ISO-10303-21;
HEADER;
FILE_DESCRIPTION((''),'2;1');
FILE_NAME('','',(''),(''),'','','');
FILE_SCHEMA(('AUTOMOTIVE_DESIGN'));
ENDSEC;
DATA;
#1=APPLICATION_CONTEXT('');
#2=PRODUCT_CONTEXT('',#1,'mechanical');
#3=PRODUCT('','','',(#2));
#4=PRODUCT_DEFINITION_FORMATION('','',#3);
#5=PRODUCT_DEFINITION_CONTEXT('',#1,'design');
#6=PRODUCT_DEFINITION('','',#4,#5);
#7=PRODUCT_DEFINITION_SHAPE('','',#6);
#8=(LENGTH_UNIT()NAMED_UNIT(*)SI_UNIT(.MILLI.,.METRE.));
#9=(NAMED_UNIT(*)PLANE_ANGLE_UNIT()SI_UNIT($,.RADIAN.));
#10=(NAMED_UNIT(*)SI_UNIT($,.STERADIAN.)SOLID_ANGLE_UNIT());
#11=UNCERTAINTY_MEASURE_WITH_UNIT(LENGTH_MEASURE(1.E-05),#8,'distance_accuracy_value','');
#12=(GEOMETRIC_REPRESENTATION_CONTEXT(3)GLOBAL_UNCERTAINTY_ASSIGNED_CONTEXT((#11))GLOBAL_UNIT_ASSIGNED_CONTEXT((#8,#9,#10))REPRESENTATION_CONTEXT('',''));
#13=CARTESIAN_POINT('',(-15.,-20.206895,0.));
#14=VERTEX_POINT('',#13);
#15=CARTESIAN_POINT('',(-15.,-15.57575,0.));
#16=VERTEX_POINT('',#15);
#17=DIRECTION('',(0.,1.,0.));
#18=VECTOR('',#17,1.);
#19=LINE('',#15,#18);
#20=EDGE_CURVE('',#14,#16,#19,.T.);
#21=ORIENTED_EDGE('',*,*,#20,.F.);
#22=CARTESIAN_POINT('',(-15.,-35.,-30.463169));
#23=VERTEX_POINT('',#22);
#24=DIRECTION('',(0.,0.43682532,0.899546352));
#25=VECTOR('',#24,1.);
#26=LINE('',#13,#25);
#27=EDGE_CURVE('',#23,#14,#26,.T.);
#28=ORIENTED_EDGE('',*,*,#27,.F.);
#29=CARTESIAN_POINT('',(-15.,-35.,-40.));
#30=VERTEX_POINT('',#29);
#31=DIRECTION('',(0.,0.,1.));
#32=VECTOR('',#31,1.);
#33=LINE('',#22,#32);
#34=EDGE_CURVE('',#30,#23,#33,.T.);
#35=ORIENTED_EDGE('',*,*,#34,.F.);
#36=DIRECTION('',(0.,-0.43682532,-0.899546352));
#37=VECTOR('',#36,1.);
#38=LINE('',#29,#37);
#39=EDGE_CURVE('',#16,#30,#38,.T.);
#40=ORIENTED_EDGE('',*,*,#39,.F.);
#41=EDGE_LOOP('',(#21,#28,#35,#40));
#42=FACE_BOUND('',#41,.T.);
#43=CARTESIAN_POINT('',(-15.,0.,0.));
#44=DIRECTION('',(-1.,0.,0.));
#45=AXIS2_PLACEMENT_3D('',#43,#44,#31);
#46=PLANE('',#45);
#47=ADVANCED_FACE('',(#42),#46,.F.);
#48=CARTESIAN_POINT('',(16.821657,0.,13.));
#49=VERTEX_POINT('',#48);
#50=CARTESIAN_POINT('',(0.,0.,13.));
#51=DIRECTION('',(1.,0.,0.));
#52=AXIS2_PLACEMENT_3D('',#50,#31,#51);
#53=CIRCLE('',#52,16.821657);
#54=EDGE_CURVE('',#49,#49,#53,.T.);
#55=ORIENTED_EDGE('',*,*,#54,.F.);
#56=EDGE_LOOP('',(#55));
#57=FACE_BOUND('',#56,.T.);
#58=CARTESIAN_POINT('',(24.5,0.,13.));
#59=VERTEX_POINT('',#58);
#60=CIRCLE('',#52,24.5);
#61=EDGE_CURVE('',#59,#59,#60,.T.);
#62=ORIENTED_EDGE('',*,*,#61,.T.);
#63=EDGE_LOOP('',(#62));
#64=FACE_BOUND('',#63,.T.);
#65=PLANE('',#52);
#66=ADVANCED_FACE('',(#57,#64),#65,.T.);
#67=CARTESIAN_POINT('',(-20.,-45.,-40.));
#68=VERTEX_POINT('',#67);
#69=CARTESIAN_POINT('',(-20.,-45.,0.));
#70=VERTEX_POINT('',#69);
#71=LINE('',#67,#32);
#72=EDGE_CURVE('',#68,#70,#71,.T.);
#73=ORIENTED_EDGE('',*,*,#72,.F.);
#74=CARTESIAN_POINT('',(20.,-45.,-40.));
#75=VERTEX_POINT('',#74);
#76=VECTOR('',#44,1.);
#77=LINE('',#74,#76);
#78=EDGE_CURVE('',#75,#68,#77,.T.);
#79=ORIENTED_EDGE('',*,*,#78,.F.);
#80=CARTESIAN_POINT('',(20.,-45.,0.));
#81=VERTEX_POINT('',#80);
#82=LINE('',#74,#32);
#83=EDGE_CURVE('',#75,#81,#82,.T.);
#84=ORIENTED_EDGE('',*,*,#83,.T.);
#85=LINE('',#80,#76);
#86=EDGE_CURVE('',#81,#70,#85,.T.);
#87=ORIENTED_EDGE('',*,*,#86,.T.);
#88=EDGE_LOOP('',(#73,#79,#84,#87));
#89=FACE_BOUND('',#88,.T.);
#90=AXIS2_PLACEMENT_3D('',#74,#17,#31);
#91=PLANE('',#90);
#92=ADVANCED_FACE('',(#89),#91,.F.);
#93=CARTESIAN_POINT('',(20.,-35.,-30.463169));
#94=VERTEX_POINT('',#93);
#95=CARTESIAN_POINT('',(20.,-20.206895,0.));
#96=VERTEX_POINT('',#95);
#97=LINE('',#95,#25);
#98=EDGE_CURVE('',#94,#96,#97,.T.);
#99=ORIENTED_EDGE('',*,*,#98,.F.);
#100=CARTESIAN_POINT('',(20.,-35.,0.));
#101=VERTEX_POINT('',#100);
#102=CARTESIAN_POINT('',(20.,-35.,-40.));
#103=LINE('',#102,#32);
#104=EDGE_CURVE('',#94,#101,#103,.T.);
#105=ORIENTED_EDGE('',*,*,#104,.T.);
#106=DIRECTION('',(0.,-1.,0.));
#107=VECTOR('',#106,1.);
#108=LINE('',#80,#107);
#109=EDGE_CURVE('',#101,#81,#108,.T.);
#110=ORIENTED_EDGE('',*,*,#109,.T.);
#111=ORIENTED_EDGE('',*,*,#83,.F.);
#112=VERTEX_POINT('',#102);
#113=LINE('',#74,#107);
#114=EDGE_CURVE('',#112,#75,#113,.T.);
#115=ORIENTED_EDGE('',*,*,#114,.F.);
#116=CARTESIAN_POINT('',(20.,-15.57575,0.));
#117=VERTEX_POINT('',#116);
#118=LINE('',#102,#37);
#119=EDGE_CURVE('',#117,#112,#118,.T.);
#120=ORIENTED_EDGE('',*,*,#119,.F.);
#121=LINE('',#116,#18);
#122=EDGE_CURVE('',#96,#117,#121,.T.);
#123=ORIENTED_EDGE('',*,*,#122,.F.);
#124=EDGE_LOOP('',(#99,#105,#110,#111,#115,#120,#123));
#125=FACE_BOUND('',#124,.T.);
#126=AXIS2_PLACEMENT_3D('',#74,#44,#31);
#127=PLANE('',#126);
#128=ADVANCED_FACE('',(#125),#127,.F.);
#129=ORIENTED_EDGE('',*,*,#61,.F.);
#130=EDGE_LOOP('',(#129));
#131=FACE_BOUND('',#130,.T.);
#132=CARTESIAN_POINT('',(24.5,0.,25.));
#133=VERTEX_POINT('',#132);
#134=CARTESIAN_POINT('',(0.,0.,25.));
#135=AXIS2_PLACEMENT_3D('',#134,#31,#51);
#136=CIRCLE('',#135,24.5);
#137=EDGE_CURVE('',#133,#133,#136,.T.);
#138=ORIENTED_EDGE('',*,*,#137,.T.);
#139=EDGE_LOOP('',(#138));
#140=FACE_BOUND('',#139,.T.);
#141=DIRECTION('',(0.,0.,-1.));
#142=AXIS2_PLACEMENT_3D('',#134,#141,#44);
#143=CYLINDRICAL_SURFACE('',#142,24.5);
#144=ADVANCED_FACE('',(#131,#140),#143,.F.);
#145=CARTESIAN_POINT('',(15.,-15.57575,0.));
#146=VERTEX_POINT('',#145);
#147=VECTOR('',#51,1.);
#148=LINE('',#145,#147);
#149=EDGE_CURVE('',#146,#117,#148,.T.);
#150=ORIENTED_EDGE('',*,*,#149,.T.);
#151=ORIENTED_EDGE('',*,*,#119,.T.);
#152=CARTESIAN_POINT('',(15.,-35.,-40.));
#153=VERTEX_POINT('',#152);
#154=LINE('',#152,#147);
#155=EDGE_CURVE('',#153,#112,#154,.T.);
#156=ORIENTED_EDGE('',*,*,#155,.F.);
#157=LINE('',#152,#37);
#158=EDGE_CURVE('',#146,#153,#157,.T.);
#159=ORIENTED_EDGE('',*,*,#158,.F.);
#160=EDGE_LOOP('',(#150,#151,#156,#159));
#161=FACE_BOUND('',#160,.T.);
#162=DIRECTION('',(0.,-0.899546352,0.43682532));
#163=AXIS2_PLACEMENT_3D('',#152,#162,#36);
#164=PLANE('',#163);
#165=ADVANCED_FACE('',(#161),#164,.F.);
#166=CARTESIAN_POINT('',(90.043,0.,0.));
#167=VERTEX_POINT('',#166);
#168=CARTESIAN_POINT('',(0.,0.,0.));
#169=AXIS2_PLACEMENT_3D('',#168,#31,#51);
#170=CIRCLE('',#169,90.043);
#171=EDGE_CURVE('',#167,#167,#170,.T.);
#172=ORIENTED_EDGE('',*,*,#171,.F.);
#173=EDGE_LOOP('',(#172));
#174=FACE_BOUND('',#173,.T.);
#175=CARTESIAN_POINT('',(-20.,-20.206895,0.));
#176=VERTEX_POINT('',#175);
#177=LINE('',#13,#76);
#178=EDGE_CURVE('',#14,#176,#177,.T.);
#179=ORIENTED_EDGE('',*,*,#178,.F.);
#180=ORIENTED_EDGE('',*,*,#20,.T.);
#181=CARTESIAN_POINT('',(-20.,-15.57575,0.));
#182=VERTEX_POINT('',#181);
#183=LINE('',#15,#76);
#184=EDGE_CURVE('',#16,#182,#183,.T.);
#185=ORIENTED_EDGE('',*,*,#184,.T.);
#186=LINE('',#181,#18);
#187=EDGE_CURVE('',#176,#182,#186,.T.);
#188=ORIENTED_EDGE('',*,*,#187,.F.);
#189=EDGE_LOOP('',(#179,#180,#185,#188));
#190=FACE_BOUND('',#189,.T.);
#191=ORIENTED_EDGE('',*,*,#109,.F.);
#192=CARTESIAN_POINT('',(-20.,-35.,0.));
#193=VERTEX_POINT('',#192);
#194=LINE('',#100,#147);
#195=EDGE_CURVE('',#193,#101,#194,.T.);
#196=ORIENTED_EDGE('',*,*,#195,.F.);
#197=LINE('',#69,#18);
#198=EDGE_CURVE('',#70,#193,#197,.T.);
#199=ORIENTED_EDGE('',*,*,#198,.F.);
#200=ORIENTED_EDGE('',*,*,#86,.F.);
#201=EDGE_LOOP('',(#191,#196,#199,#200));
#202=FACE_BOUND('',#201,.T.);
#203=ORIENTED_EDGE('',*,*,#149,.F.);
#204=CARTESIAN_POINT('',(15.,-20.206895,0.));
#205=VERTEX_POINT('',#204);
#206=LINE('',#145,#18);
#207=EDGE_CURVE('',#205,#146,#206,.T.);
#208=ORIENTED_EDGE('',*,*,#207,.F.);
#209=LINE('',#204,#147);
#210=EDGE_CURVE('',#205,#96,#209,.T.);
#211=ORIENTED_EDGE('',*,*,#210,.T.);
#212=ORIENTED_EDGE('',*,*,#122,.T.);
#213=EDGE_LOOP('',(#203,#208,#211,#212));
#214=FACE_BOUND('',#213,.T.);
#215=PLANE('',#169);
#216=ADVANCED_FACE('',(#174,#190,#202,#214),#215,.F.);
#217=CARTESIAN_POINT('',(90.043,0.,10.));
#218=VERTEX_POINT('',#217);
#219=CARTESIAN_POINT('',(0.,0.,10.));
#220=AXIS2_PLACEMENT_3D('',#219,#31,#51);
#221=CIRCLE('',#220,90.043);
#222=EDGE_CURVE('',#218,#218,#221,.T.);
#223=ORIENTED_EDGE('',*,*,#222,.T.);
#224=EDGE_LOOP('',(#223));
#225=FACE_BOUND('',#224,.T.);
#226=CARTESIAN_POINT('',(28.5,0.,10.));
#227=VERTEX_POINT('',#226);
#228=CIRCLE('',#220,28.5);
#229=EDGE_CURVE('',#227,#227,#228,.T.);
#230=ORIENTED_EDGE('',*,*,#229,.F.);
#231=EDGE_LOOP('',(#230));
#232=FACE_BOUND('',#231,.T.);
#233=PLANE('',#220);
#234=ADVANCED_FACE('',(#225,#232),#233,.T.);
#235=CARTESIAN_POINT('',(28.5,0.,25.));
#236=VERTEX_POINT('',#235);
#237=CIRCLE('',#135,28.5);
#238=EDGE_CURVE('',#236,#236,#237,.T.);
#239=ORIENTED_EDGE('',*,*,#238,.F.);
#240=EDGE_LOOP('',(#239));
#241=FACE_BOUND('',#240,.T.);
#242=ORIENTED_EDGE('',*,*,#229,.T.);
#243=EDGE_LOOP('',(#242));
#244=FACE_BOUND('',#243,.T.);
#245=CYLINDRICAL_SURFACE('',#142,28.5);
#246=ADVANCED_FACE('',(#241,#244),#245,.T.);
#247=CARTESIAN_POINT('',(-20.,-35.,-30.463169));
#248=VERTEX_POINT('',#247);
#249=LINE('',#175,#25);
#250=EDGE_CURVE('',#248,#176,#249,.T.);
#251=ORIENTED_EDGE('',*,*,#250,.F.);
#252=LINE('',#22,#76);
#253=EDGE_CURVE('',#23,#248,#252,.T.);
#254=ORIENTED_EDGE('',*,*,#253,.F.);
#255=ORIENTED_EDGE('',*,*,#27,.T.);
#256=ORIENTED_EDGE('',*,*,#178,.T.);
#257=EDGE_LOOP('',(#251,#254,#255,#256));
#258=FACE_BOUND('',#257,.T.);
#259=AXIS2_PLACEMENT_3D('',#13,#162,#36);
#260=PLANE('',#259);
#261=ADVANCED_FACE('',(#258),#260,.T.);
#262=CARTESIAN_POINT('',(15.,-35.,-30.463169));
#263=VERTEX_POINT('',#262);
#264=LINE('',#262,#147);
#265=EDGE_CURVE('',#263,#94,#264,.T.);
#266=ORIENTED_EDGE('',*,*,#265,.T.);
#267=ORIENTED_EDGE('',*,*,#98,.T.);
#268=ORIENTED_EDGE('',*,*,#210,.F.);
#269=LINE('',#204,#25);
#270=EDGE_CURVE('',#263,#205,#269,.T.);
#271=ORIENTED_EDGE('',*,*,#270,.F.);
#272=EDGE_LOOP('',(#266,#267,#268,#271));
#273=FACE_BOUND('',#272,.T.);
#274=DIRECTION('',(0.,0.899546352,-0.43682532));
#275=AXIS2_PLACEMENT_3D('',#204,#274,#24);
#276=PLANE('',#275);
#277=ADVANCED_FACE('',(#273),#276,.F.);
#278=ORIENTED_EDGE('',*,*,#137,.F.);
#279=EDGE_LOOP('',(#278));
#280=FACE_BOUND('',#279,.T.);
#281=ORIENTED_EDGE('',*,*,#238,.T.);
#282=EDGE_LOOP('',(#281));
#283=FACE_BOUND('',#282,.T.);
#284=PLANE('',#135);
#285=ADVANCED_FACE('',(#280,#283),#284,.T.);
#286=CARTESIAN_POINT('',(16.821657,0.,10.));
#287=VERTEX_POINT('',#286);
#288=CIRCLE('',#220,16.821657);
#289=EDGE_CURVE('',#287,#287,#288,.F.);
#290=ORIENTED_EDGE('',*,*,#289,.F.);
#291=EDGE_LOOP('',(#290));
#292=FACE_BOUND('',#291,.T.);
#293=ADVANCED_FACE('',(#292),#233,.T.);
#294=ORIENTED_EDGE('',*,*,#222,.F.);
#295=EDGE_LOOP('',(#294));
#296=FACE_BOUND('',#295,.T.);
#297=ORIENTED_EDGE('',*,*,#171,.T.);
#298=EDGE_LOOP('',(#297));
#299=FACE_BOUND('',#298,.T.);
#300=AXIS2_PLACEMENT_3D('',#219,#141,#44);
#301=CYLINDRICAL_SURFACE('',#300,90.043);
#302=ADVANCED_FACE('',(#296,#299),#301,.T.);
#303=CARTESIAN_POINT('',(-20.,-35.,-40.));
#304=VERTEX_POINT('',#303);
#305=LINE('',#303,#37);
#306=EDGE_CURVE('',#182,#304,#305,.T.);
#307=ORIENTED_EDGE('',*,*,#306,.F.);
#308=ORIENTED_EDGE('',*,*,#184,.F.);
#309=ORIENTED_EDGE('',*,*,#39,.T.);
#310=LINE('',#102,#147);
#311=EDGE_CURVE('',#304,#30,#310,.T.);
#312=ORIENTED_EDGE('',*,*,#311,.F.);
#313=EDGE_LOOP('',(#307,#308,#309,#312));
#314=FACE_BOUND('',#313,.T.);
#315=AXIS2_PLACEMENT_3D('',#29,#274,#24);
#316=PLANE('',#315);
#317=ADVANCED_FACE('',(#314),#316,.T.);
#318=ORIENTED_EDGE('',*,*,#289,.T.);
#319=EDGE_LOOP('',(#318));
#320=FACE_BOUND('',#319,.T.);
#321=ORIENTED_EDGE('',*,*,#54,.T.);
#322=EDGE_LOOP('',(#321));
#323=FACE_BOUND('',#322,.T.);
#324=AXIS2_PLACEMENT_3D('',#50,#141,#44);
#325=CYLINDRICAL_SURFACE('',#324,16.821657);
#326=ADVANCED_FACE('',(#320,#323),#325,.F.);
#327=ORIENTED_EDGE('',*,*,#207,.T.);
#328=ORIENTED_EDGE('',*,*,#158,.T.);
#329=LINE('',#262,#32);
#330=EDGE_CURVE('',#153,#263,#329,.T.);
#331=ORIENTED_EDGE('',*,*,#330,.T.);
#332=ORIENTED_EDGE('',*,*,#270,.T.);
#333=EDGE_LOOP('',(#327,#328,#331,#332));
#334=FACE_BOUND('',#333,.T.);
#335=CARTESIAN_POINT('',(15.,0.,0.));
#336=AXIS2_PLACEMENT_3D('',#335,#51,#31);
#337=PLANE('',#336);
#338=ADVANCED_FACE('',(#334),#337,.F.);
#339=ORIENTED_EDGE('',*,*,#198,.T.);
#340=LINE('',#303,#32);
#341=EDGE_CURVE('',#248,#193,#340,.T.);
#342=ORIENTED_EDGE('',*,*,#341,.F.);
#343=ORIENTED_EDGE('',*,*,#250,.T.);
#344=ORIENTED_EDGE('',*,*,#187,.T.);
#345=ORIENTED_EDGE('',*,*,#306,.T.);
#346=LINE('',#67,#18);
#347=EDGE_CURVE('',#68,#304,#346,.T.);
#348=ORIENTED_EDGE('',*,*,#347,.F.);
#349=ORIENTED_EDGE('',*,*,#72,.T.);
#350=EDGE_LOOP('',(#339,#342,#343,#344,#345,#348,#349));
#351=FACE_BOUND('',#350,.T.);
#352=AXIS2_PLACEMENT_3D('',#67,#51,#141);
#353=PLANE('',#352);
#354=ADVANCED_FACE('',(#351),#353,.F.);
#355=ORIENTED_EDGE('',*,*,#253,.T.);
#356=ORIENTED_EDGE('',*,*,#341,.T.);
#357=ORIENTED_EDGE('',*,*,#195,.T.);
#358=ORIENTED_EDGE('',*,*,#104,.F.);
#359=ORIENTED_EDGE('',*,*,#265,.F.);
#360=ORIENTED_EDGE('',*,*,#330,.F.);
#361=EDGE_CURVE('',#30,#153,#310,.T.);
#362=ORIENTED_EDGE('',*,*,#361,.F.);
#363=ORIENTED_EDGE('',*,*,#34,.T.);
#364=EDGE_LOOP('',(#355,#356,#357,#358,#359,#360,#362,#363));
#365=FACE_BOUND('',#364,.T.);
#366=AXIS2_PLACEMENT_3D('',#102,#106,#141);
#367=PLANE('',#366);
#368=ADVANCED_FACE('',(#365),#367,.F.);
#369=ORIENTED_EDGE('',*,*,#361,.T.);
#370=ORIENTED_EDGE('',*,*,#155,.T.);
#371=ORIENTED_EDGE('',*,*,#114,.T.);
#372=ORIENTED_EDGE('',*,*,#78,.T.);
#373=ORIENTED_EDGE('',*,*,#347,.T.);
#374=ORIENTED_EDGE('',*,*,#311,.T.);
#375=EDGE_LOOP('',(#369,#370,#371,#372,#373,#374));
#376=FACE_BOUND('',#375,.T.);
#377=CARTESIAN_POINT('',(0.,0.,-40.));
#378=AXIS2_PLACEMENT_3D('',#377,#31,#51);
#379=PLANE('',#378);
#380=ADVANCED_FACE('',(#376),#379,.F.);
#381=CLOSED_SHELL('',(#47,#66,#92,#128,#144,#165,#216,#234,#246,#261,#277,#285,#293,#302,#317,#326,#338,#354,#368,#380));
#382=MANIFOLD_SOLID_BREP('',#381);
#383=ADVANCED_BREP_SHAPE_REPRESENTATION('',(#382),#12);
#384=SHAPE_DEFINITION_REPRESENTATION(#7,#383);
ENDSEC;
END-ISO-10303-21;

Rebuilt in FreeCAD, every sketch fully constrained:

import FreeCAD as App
import Part
import Sketcher
from FreeCAD import Vector

doc = App.newDocument("Part")
params = doc.addObject("Spreadsheet::Sheet", "Params")
for row, (alias, value) in enumerate([
    ("pad1_length", "10 mm"),
    ("sketch2_width", "40 mm"),
    ("sketch2_height", "10 mm"),
    ("pad2_length", "40 mm"),
    ("pad3_length", "5 mm"),
    ("sketch4_diameter", "57 mm"),
    ("sketch4_diameter2", "49 mm"),
    ("pad4_length", "15 mm"),
    ("sketch5_diameter", "49 mm"),
    ("pad5_length", "3 mm"),
], start=1):
    params.set(f"A{row}", alias)
    params.set(f"B{row}", "=" + value)
    params.setAlias(f"B{row}", alias)

body = doc.addObject("PartDesign::Body", "Body")

# Sketch on XY plane
sketch1 = body.newObject("Sketcher::SketchObject", "Sketch")
sketch1.AttachmentSupport = (doc.getObject("XY_Plane"), [""])
sketch1.MapMode = "FlatFace"
sketch1.addGeometry(Part.Circle(Vector(0, 0, 0), Vector(0, 0, 1), 90), False)
sketch1.addConstraint(Sketcher.Constraint("Coincident", 0, 3, -1, 1))
sketch1.addConstraint(Sketcher.Constraint("Diameter", 0, 180.086))
pad1 = body.newObject("PartDesign::Pad", "Pad")
pad1.Profile = sketch1
pad1.setExpression("Length", "Params.pad1_length")

# Sketch on XY plane
sketch2 = body.newObject("Sketcher::SketchObject", "Sketch001")
sketch2.AttachmentSupport = (doc.getObject("XY_Plane"), [""])
sketch2.MapMode = "FlatFace"
sketch2.addGeometry(Part.LineSegment(Vector(20, -35, 0), Vector(20, -45, 0)), False)
sketch2.addGeometry(Part.LineSegment(Vector(20, -45, 0), Vector(-20, -45, 0)), False)
sketch2.addGeometry(Part.LineSegment(Vector(-20, -45, 0), Vector(-20, -35, 0)), False)
sketch2.addGeometry(Part.LineSegment(Vector(-20, -35, 0), Vector(20, -35, 0)), False)
sketch2.addConstraint(Sketcher.Constraint("Coincident", 0, 2, 1, 1))
sketch2.addConstraint(Sketcher.Constraint("Coincident", 1, 2, 2, 1))
sketch2.addConstraint(Sketcher.Constraint("Coincident", 2, 2, 3, 1))
sketch2.addConstraint(Sketcher.Constraint("Coincident", 3, 2, 0, 1))
sketch2.addConstraint(Sketcher.Constraint("Vertical", 0))
sketch2.addConstraint(Sketcher.Constraint("Horizontal", 1))
sketch2.addConstraint(Sketcher.Constraint("Vertical", 2))
sketch2.addConstraint(Sketcher.Constraint("Horizontal", 3))
sketch2.addConstraint(Sketcher.Constraint("DistanceX", 1, 2, 1, 1, 40.0))
sketch2.addConstraint(Sketcher.Constraint("DistanceY", 0, 2, 0, 1, 10.0))
sketch2.addConstraint(Sketcher.Constraint("DistanceX", -1, 1, 0, 2, 20.0))
sketch2.addConstraint(Sketcher.Constraint("DistanceY", 0, 2, -1, 1, 45.0))
sketch2.setExpression("Constraints[8]", "Params.sketch2_width")
sketch2.setExpression("Constraints[9]", "Params.sketch2_height")
pad2 = body.newObject("PartDesign::Pad", "Pad001")
pad2.Profile = sketch2
pad2.setExpression("Length", "Params.pad2_length")
pad2.Reversed = True

# Sketch on YZ plane
sketch3 = body.newObject("Sketcher::SketchObject", "Sketch002")
sketch3.AttachmentSupport = (doc.getObject("YZ_Plane"), [""])
sketch3.MapMode = "FlatFace"
sketch3.AttachmentOffset = App.Placement(Vector(0, 0, -20), App.Rotation())
sketch3.addGeometry(Part.LineSegment(Vector(-15.6, 0, 0), Vector(-35, -40, 0)), False)
sketch3.addGeometry(Part.LineSegment(Vector(-35, -40, 0), Vector(-35, -30.5, 0)), False)
sketch3.addGeometry(Part.LineSegment(Vector(-35, -30.5, 0), Vector(-20.2, 0, 0)), False)
sketch3.addGeometry(Part.LineSegment(Vector(-20.2, 0, 0), Vector(-15.6, 0, 0)), False)
sketch3.addConstraint(Sketcher.Constraint("Coincident", 0, 2, 1, 1))
sketch3.addConstraint(Sketcher.Constraint("Coincident", 1, 2, 2, 1))
sketch3.addConstraint(Sketcher.Constraint("Coincident", 2, 2, 3, 1))
sketch3.addConstraint(Sketcher.Constraint("Coincident", 3, 2, 0, 1))
sketch3.addConstraint(Sketcher.Constraint("Vertical", 1))
sketch3.addConstraint(Sketcher.Constraint("Horizontal", 3))
sketch3.addConstraint(Sketcher.Constraint("PointOnObject", 2, 2, -1))
sketch3.addConstraint(Sketcher.Constraint("Parallel", 0, 2))
sketch3.addConstraint(Sketcher.Constraint("DistanceX", 0, 2, -1, 1, 35.0))
sketch3.addConstraint(Sketcher.Constraint("DistanceY", 0, 2, -1, 1, 40.0))
sketch3.addConstraint(Sketcher.Constraint("DistanceY", 1, 1, 1, 2, 9.536831))
sketch3.addConstraint(Sketcher.Constraint("Distance", 0, 44.466858))
pad3 = body.newObject("PartDesign::Pad", "Pad002")
pad3.Profile = sketch3
pad3.setExpression("Length", "Params.pad3_length")
doc.recompute()

mirrored = body.newObject("PartDesign::Mirrored", "Mirrored")
mirrored.Originals = [pad3]
mirrored.MirrorPlane = (doc.getObject("YZ_Plane"), [""])
body.Tip = mirrored

# Sketch on XY plane
sketch4 = body.newObject("Sketcher::SketchObject", "Sketch003")
sketch4.AttachmentSupport = (doc.getObject("XY_Plane"), [""])
sketch4.MapMode = "FlatFace"
sketch4.AttachmentOffset = App.Placement(Vector(0, 0, 10), App.Rotation())
sketch4.addGeometry(Part.Circle(Vector(0, 0, 0), Vector(0, 0, 1), 28), False)
sketch4.addGeometry(Part.Circle(Vector(0, 0, 0), Vector(0, 0, 1), 24), False)
sketch4.addConstraint(Sketcher.Constraint("Coincident", 0, 3, -1, 1))
sketch4.addConstraint(Sketcher.Constraint("Coincident", 1, 3, -1, 1))
sketch4.addConstraint(Sketcher.Constraint("Diameter", 0, 57.0))
sketch4.addConstraint(Sketcher.Constraint("Diameter", 1, 49.0))
sketch4.setExpression("Constraints[2]", "Params.sketch4_diameter")
sketch4.setExpression("Constraints[3]", "Params.sketch4_diameter2")
pad4 = body.newObject("PartDesign::Pad", "Pad003")
pad4.Profile = sketch4
pad4.setExpression("Length", "Params.pad4_length")

# Sketch on XY plane
sketch5 = body.newObject("Sketcher::SketchObject", "Sketch004")
sketch5.AttachmentSupport = (doc.getObject("XY_Plane"), [""])
sketch5.MapMode = "FlatFace"
sketch5.AttachmentOffset = App.Placement(Vector(0, 0, 10), App.Rotation())
sketch5.addGeometry(Part.Circle(Vector(0, 0, 0), Vector(0, 0, 1), 24), False)
sketch5.addGeometry(Part.Circle(Vector(0, 0, 0), Vector(0, 0, 1), 17), False)
sketch5.addConstraint(Sketcher.Constraint("Coincident", 0, 3, -1, 1))
sketch5.addConstraint(Sketcher.Constraint("Coincident", 1, 3, -1, 1))
sketch5.addConstraint(Sketcher.Constraint("Diameter", 0, 49.0))
sketch5.addConstraint(Sketcher.Constraint("Diameter", 1, 33.643315))
sketch5.setExpression("Constraints[2]", "Params.sketch5_diameter")
pad5 = body.newObject("PartDesign::Pad", "Pad004")
pad5.Profile = sketch5
pad5.setExpression("Length", "Params.pad5_length")

doc.recompute()
